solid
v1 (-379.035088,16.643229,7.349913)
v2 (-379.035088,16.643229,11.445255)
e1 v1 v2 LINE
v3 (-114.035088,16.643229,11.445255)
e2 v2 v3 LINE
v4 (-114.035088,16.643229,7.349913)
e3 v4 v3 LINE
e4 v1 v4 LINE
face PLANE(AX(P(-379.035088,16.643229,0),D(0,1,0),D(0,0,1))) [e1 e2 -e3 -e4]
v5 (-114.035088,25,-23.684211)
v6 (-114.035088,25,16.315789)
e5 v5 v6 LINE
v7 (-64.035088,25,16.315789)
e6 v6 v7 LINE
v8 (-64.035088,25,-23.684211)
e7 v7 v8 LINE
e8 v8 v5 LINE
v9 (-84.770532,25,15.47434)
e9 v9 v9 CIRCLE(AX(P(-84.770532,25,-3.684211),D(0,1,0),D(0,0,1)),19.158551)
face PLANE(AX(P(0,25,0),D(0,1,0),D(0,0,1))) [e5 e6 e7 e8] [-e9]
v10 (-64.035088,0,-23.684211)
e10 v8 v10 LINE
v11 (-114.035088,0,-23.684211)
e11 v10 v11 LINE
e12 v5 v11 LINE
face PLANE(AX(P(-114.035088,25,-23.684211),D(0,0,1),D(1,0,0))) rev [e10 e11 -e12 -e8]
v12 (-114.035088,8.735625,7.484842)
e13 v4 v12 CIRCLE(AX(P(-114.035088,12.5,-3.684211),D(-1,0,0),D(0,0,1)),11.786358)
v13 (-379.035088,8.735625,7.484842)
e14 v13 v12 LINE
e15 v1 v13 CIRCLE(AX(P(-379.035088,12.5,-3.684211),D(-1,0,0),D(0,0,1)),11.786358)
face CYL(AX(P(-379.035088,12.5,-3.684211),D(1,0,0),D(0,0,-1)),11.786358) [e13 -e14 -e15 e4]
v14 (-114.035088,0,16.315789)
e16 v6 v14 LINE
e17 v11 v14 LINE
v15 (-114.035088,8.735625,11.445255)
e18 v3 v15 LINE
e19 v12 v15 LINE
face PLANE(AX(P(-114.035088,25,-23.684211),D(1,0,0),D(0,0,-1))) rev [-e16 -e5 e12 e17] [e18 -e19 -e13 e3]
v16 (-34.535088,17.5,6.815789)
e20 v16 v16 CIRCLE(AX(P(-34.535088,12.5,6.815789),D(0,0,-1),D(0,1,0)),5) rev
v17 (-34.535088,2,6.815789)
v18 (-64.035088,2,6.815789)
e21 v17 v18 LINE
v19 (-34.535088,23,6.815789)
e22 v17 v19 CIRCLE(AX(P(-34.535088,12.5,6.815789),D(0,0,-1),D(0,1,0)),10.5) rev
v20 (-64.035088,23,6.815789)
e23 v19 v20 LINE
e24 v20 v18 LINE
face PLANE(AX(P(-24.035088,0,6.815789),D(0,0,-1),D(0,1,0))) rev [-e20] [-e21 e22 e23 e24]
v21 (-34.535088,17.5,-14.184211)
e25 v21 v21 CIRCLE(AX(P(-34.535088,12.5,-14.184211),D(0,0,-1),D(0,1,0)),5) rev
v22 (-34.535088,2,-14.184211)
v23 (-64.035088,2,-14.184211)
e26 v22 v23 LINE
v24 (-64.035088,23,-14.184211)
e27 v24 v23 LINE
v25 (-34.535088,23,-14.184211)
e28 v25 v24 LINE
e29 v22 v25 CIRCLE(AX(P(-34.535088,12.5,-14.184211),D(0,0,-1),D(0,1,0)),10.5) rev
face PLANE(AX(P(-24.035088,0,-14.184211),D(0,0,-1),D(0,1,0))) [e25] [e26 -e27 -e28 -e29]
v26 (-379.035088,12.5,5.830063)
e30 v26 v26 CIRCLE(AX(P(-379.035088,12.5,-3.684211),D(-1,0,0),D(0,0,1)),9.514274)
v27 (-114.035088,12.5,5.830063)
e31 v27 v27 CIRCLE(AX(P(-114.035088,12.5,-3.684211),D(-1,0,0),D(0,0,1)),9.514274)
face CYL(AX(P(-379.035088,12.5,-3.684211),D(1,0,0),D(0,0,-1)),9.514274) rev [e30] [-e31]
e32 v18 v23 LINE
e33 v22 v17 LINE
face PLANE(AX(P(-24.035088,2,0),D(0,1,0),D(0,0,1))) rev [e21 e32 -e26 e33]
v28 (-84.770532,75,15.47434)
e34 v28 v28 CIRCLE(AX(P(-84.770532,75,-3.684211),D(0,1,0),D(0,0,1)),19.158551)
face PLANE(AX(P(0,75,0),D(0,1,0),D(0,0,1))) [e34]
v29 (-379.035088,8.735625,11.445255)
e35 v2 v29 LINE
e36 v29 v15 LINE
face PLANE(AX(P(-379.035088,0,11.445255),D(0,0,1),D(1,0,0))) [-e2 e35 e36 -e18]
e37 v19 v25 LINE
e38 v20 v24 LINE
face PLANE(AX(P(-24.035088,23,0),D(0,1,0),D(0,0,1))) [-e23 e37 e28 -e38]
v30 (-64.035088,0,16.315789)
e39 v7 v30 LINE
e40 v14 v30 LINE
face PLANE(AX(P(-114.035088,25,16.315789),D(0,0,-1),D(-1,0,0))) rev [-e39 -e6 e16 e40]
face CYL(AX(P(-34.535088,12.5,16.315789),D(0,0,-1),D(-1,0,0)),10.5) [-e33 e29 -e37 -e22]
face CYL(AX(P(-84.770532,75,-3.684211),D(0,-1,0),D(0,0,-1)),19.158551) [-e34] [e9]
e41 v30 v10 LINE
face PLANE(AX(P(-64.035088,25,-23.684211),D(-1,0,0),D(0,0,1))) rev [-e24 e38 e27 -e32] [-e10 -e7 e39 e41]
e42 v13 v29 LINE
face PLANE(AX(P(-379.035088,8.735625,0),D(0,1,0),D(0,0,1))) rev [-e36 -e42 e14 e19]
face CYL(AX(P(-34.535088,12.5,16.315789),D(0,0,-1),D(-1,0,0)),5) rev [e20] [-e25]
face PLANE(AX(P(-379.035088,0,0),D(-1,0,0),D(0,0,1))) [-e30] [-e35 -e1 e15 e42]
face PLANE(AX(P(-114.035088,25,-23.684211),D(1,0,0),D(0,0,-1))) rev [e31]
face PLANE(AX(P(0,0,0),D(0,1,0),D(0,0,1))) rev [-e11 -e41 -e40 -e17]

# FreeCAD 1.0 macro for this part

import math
import FreeCAD as App
import Part
import Sketcher

V = App.Vector

doc = App.newDocument("Part")
body = doc.addObject("PartDesign::Body", "Body")

# Sketch on XZ plane
sketch1 = doc.addObject("Sketcher::SketchObject", "Sketch")
body.addObject(sketch1)
sketch1.AttachmentSupport = (doc.XZ_Plane, [""])
sketch1.MapMode = "FlatFace"
sketch1.addGeometry(Part.LineSegment(V(-114.035088, -23.684211, 0), V(-114.035088, 16.315789, 0)), False)
sketch1.addGeometry(Part.LineSegment(V(-114.035088, 16.315789, 0), V(-64.035088, 16.315789, 0)), False)
sketch1.addGeometry(Part.LineSegment(V(-64.035088, 16.315789, 0), V(-64.035088, -23.684211, 0)), False)
sketch1.addGeometry(Part.LineSegment(V(-64.035088, -23.684211, 0), V(-114.035088, -23.684211, 0)), False)
sketch1.addConstraint(Sketcher.Constraint("Coincident", 0, 2, 1, 1))
sketch1.addConstraint(Sketcher.Constraint("Coincident", 1, 2, 2, 1))
sketch1.addConstraint(Sketcher.Constraint("Coincident", 2, 2, 3, 1))
sketch1.addConstraint(Sketcher.Constraint("Coincident", 3, 2, 0, 1))
sketch1.addConstraint(Sketcher.Constraint("Vertical", 0))
sketch1.addConstraint(Sketcher.Constraint("Horizontal", 1))
sketch1.addConstraint(Sketcher.Constraint("Vertical", 2))
sketch1.addConstraint(Sketcher.Constraint("Horizontal", 3))
sketch1.addConstraint(Sketcher.Constraint("DistanceX", 1, 1, 1, 2, 50.0))
sketch1.addConstraint(Sketcher.Constraint("DistanceY", 0, 1, 0, 2, 40.0))
sketch1.addConstraint(Sketcher.Constraint("DistanceY", -1, 1, 0, 2, 16.315789))
sketch1.addConstraint(Sketcher.Constraint("DistanceX", 0, 2, -1, 1, 114.035088))
pad1 = doc.addObject("PartDesign::Pad", "Pad")
body.addObject(pad1)
pad1.Profile = sketch1
pad1.Length = 25
pad1.Reversed = True

# Sketch on XZ plane
sketch2 = doc.addObject("Sketcher::SketchObject", "Sketch001")
body.addObject(sketch2)
sketch2.AttachmentSupport = (doc.XZ_Plane, [""])
sketch2.MapMode = "FlatFace"
sketch2.AttachmentOffset = App.Placement(V(0, 0, -25), App.Rotation())
sketch2.addGeometry(Part.ArcOfCircle(Part.Circle(V(-84.770532, -3.684211, 0), V(0, 0, 1), 19.158551), math.radians(-90), math.radians(0)), False)
sketch2.addGeometry(Part.ArcOfCircle(Part.Circle(V(-84.770532, -3.684211, 0), V(0, 0, 1), 19.158551), math.radians(90), math.radians(270)), False)
sketch2.addGeometry(Part.ArcOfCircle(Part.Circle(V(-84.770532, -3.684211, 0), V(0, 0, 1), 19.158551), math.radians(0), math.radians(90)), False)
sketch2.addConstraint(Sketcher.Constraint("Tangent", 0, 1, 1, 2))
sketch2.addConstraint(Sketcher.Constraint("Tangent", 1, 1, 2, 2))
sketch2.addConstraint(Sketcher.Constraint("Tangent", 2, 1, 0, 2))
sketch2.addConstraint(Sketcher.Constraint("Horizontal", 1, 3, 2, 1))
sketch2.addConstraint(Sketcher.Constraint("Vertical", 2, 3, 0, 1))
sketch2.addConstraint(Sketcher.Constraint("Vertical", 0, 1, 1, 1))
sketch2.addConstraint(Sketcher.Constraint("Radius", 0, 19.158551))
sketch2.addConstraint(Sketcher.Constraint("DistanceX", 0, 3, -1, 1, 84.770532))
sketch2.addConstraint(Sketcher.Constraint("DistanceY", 0, 3, -1, 1, 3.684211))
pad2 = doc.addObject("PartDesign::Pad", "Pad001")
body.addObject(pad2)
pad2.Profile = sketch2
pad2.Length = 50
pad2.Reversed = True

# Sketch on YZ plane
sketch3 = doc.addObject("Sketcher::SketchObject", "Sketch002")
body.addObject(sketch3)
sketch3.AttachmentSupport = (doc.YZ_Plane, [""])
sketch3.MapMode = "FlatFace"
sketch3.AttachmentOffset = App.Placement(V(0, 0, -114.035088), App.Rotation())
sketch3.addGeometry(Part.ArcOfCircle(Part.Circle(V(12.5, -3.684211, 0), V(0, 0, 1), 11.786358), math.radians(180), math.radians(360)), False)
sketch3.addGeometry(Part.ArcOfCircle(Part.Circle(V(12.5, -3.684211, 0), V(0, 0, 1), 11.786358), math.radians(108.625678), math.radians(180)), False)
sketch3.addGeometry(Part.LineSegment(V(8.735625, 7.484842, 0), V(8.735625, 11.445255, 0)), False)
sketch3.addGeometry(Part.LineSegment(V(8.735625, 11.445255, 0), V(16.643229, 11.445255, 0)), False)
sketch3.addGeometry(Part.LineSegment(V(16.643229, 11.445255, 0), V(16.643229, 7.349913, 0)), False)
sketch3.addGeometry(Part.ArcOfCircle(Part.Circle(V(12.5, -3.684211, 0), V(0, 0, 1), 11.786358), math.radians(0), math.radians(69.419226)), False)
sketch3.addGeometry(Part.ArcOfCircle(Part.Circle(V(12.5, -3.684211, 0), V(0, 0, 1), 9.514274), math.radians(180), math.radians(360)), False)
sketch3.addGeometry(Part.ArcOfCircle(Part.Circle(V(12.5, -3.684211, 0), V(0, 0, 1), 9.514274), math.radians(0), math.radians(90)), False)
sketch3.addGeometry(Part.ArcOfCircle(Part.Circle(V(12.5, -3.684211, 0), V(0, 0, 1), 9.514274), math.radians(90), math.radians(180)), False)
sketch3.addConstraint(Sketcher.Constraint("Tangent", 0, 1, 1, 2))
sketch3.addConstraint(Sketcher.Constraint("Coincident", 1, 1, 2, 1))
sketch3.addConstraint(Sketcher.Constraint("Coincident", 2, 2, 3, 1))
sketch3.addConstraint(Sketcher.Constraint("Coincident", 3, 2, 4, 1))
sketch3.addConstraint(Sketcher.Constraint("Coincident", 4, 2, 5, 2))
sketch3.addConstraint(Sketcher.Constraint("Tangent", 5, 1, 0, 2))
sketch3.addConstraint(Sketcher.Constraint("Tangent", 6, 2, 7, 1))
sketch3.addConstraint(Sketcher.Constraint("Tangent", 7, 2, 8, 1))
sketch3.addConstraint(Sketcher.Constraint("Tangent", 8, 2, 6, 1))
sketch3.addConstraint(Sketcher.Constraint("Vertical", 2))
sketch3.addConstraint(Sketcher.Constraint("Horizontal", 3))
sketch3.addConstraint(Sketcher.Constraint("Vertical", 4))
sketch3.addConstraint(Sketcher.Constraint("Coincident", 6, 3, 0, 3))
sketch3.addConstraint(Sketcher.Constraint("Equal", 0, 1))
sketch3.addConstraint(Sketcher.Constraint("Equal", 1, 5))
sketch3.addConstraint(Sketcher.Constraint("Horizontal", 8, 3, 0, 1))
sketch3.addConstraint(Sketcher.Constraint("Horizontal", 0, 1, 5, 1))
sketch3.addConstraint(Sketcher.Constraint("Horizontal", 5, 1, 6, 2))
sketch3.addConstraint(Sketcher.Constraint("Horizontal", 6, 2, 8, 2))
sketch3.addConstraint(Sketcher.Constraint("Vertical", 8, 3, 7, 2))
sketch3.addConstraint(Sketcher.Constraint("DistanceX", -1, 1, 0, 3, 12.5))
sketch3.addConstraint(Sketcher.Constraint("Radius", 0, 11.786358))
sketch3.addConstraint(Sketcher.Constraint("Radius", 6, 9.514274))
sketch3.addConstraint(Sketcher.Constraint("DistanceY", 4, 2, 4, 1, 4.095341))
sketch3.addConstraint(Sketcher.Constraint("DistanceX", 3, 1, 3, 2, 7.907604))
sketch3.addConstraint(Sketcher.Constraint("DistanceY", 2, 1, 2, 2, 3.960413))
sketch3.addConstraint(Sketcher.Constraint("DistanceY", 0, 3, -1, 1, 3.684211))
pad3 = doc.addObject("PartDesign::Pad", "Pad002")
body.addObject(pad3)
pad3.Profile = sketch3
pad3.Length = 265
pad3.Reversed = True

# Sketch on YZ plane
sketch4 = doc.addObject("Sketcher::SketchObject", "Sketch003")
body.addObject(sketch4)
sketch4.AttachmentSupport = (doc.YZ_Plane, [""])
sketch4.MapMode = "FlatFace"
sketch4.AttachmentOffset = App.Placement(V(0, 0, -64.035088), App.Rotation())
sketch4.addGeometry(Part.LineSegment(V(23, 6.815789, 0), V(2, 6.815789, 0)), False)
sketch4.addGeometry(Part.LineSegment(V(2, 6.815789, 0), V(2, -14.184211, 0)), False)
sketch4.addGeometry(Part.LineSegment(V(2, -14.184211, 0), V(23, -14.184211, 0)), False)
sketch4.addGeometry(Part.LineSegment(V(23, -14.184211, 0), V(23, 6.815789, 0)), False)
sketch4.addConstraint(Sketcher.Constraint("Coincident", 0, 2, 1, 1))
sketch4.addConstraint(Sketcher.Constraint("Coincident", 1, 2, 2, 1))
sketch4.addConstraint(Sketcher.Constraint("Coincident", 2, 2, 3, 1))
sketch4.addConstraint(Sketcher.Constraint("Coincident", 3, 2, 0, 1))
sketch4.addConstraint(Sketcher.Constraint("Horizontal", 0))
sketch4.addConstraint(Sketcher.Constraint("Vertical", 1))
sketch4.addConstraint(Sketcher.Constraint("Horizontal", 2))
sketch4.addConstraint(Sketcher.Constraint("Vertical", 3))
sketch4.addConstraint(Sketcher.Constraint("Equal", 2, 1))
sketch4.addConstraint(Sketcher.Constraint("DistanceX", 0, 2, 0, 1, 21.0))
sketch4.addConstraint(Sketcher.Constraint("DistanceX", -1, 1, 0, 2, 2.0))
sketch4.addConstraint(Sketcher.Constraint("DistanceY", -1, 1, 0, 2, 6.815789))
pad4 = doc.addObject("PartDesign::Pad", "Pad003")
body.addObject(pad4)
pad4.Profile = sketch4
pad4.Length = 40

# Sketch on XY plane
sketch5 = doc.addObject("Sketcher::SketchObject", "Sketch004")
body.addObject(sketch5)
sketch5.AttachmentSupport = (doc.XY_Plane, [""])
sketch5.MapMode = "FlatFace"
sketch5.AttachmentOffset = App.Placement(V(0, 0, 6.815789), App.Rotation())
sketch5.addGeometry(Part.LineSegment(V(-24.035088, 23, 0), V(-34.535088, 23, 0)), False)
sketch5.addGeometry(Part.ArcOfCircle(Part.Circle(V(-34.535088, 12.5, 0), V(0, 0, 1), 10.5), math.radians(0), math.radians(90)), False)
sketch5.addGeometry(Part.LineSegment(V(-24.035088, 12.5, 0), V(-24.035088, 23, 0)), False)
sketch5.addGeometry(Part.LineSegment(V(-24.035088, 2, 0), V(-24.035088, 12.5, 0)), False)
sketch5.addGeometry(Part.ArcOfCircle(Part.Circle(V(-34.535088, 12.5, 0), V(0, 0, 1), 10.5), math.radians(-90), math.radians(0)), False)
sketch5.addGeometry(Part.LineSegment(V(-34.535088, 2, 0), V(-24.035088, 2, 0)), False)
sketch5.addGeometry(Part.Circle(V(-34.535088, 12.5, 0), V(0, 0, 1), 5), False)
sketch5.addConstraint(Sketcher.Constraint("Tangent", 0, 2, 1, 2))
sketch5.addConstraint(Sketcher.Constraint("Tangent", 1, 1, 2, 1))
sketch5.addConstraint(Sketcher.Constraint("Coincident", 2, 2, 0, 1))
sketch5.addConstraint(Sketcher.Constraint("Tangent", 3, 2, 4, 2))
sketch5.addConstraint(Sketcher.Constraint("Tangent", 4, 1, 5, 1))
sketch5.addConstraint(Sketcher.Constraint("Coincident", 5, 2, 3, 1))
sketch5.addConstraint(Sketcher.Constraint("Horizontal", 0))
sketch5.addConstraint(Sketcher.Constraint("Vertical", 2))
sketch5.addConstraint(Sketcher.Constraint("Vertical", 3))
sketch5.addConstraint(Sketcher.Constraint("Horizontal", 5))
sketch5.addConstraint(Sketcher.Constraint("Coincident", 4, 3, 1, 3))
sketch5.addConstraint(Sketcher.Constraint("Coincident", 6, 3, 1, 3))
sketch5.addConstraint(Sketcher.Constraint("Equal", 1, 4))
sketch5.addConstraint(Sketcher.Constraint("Diameter", 6, 10.0))
sketch5.addConstraint(Sketcher.Constraint("Radius", 1, 10.5))
sketch5.addConstraint(Sketcher.Constraint("DistanceY", -1, 1, 0, 2, 23.0))
sketch5.addConstraint(Sketcher.Constraint("DistanceX", 1, 3, -1, 1, 34.535088))
pocket1 = doc.addObject("PartDesign::Pocket", "Pocket")
body.addObject(pocket1)
pocket1.Profile = sketch5
pocket1.Type = "ThroughAll"
pocket1.Midplane = True

doc.recompute()
